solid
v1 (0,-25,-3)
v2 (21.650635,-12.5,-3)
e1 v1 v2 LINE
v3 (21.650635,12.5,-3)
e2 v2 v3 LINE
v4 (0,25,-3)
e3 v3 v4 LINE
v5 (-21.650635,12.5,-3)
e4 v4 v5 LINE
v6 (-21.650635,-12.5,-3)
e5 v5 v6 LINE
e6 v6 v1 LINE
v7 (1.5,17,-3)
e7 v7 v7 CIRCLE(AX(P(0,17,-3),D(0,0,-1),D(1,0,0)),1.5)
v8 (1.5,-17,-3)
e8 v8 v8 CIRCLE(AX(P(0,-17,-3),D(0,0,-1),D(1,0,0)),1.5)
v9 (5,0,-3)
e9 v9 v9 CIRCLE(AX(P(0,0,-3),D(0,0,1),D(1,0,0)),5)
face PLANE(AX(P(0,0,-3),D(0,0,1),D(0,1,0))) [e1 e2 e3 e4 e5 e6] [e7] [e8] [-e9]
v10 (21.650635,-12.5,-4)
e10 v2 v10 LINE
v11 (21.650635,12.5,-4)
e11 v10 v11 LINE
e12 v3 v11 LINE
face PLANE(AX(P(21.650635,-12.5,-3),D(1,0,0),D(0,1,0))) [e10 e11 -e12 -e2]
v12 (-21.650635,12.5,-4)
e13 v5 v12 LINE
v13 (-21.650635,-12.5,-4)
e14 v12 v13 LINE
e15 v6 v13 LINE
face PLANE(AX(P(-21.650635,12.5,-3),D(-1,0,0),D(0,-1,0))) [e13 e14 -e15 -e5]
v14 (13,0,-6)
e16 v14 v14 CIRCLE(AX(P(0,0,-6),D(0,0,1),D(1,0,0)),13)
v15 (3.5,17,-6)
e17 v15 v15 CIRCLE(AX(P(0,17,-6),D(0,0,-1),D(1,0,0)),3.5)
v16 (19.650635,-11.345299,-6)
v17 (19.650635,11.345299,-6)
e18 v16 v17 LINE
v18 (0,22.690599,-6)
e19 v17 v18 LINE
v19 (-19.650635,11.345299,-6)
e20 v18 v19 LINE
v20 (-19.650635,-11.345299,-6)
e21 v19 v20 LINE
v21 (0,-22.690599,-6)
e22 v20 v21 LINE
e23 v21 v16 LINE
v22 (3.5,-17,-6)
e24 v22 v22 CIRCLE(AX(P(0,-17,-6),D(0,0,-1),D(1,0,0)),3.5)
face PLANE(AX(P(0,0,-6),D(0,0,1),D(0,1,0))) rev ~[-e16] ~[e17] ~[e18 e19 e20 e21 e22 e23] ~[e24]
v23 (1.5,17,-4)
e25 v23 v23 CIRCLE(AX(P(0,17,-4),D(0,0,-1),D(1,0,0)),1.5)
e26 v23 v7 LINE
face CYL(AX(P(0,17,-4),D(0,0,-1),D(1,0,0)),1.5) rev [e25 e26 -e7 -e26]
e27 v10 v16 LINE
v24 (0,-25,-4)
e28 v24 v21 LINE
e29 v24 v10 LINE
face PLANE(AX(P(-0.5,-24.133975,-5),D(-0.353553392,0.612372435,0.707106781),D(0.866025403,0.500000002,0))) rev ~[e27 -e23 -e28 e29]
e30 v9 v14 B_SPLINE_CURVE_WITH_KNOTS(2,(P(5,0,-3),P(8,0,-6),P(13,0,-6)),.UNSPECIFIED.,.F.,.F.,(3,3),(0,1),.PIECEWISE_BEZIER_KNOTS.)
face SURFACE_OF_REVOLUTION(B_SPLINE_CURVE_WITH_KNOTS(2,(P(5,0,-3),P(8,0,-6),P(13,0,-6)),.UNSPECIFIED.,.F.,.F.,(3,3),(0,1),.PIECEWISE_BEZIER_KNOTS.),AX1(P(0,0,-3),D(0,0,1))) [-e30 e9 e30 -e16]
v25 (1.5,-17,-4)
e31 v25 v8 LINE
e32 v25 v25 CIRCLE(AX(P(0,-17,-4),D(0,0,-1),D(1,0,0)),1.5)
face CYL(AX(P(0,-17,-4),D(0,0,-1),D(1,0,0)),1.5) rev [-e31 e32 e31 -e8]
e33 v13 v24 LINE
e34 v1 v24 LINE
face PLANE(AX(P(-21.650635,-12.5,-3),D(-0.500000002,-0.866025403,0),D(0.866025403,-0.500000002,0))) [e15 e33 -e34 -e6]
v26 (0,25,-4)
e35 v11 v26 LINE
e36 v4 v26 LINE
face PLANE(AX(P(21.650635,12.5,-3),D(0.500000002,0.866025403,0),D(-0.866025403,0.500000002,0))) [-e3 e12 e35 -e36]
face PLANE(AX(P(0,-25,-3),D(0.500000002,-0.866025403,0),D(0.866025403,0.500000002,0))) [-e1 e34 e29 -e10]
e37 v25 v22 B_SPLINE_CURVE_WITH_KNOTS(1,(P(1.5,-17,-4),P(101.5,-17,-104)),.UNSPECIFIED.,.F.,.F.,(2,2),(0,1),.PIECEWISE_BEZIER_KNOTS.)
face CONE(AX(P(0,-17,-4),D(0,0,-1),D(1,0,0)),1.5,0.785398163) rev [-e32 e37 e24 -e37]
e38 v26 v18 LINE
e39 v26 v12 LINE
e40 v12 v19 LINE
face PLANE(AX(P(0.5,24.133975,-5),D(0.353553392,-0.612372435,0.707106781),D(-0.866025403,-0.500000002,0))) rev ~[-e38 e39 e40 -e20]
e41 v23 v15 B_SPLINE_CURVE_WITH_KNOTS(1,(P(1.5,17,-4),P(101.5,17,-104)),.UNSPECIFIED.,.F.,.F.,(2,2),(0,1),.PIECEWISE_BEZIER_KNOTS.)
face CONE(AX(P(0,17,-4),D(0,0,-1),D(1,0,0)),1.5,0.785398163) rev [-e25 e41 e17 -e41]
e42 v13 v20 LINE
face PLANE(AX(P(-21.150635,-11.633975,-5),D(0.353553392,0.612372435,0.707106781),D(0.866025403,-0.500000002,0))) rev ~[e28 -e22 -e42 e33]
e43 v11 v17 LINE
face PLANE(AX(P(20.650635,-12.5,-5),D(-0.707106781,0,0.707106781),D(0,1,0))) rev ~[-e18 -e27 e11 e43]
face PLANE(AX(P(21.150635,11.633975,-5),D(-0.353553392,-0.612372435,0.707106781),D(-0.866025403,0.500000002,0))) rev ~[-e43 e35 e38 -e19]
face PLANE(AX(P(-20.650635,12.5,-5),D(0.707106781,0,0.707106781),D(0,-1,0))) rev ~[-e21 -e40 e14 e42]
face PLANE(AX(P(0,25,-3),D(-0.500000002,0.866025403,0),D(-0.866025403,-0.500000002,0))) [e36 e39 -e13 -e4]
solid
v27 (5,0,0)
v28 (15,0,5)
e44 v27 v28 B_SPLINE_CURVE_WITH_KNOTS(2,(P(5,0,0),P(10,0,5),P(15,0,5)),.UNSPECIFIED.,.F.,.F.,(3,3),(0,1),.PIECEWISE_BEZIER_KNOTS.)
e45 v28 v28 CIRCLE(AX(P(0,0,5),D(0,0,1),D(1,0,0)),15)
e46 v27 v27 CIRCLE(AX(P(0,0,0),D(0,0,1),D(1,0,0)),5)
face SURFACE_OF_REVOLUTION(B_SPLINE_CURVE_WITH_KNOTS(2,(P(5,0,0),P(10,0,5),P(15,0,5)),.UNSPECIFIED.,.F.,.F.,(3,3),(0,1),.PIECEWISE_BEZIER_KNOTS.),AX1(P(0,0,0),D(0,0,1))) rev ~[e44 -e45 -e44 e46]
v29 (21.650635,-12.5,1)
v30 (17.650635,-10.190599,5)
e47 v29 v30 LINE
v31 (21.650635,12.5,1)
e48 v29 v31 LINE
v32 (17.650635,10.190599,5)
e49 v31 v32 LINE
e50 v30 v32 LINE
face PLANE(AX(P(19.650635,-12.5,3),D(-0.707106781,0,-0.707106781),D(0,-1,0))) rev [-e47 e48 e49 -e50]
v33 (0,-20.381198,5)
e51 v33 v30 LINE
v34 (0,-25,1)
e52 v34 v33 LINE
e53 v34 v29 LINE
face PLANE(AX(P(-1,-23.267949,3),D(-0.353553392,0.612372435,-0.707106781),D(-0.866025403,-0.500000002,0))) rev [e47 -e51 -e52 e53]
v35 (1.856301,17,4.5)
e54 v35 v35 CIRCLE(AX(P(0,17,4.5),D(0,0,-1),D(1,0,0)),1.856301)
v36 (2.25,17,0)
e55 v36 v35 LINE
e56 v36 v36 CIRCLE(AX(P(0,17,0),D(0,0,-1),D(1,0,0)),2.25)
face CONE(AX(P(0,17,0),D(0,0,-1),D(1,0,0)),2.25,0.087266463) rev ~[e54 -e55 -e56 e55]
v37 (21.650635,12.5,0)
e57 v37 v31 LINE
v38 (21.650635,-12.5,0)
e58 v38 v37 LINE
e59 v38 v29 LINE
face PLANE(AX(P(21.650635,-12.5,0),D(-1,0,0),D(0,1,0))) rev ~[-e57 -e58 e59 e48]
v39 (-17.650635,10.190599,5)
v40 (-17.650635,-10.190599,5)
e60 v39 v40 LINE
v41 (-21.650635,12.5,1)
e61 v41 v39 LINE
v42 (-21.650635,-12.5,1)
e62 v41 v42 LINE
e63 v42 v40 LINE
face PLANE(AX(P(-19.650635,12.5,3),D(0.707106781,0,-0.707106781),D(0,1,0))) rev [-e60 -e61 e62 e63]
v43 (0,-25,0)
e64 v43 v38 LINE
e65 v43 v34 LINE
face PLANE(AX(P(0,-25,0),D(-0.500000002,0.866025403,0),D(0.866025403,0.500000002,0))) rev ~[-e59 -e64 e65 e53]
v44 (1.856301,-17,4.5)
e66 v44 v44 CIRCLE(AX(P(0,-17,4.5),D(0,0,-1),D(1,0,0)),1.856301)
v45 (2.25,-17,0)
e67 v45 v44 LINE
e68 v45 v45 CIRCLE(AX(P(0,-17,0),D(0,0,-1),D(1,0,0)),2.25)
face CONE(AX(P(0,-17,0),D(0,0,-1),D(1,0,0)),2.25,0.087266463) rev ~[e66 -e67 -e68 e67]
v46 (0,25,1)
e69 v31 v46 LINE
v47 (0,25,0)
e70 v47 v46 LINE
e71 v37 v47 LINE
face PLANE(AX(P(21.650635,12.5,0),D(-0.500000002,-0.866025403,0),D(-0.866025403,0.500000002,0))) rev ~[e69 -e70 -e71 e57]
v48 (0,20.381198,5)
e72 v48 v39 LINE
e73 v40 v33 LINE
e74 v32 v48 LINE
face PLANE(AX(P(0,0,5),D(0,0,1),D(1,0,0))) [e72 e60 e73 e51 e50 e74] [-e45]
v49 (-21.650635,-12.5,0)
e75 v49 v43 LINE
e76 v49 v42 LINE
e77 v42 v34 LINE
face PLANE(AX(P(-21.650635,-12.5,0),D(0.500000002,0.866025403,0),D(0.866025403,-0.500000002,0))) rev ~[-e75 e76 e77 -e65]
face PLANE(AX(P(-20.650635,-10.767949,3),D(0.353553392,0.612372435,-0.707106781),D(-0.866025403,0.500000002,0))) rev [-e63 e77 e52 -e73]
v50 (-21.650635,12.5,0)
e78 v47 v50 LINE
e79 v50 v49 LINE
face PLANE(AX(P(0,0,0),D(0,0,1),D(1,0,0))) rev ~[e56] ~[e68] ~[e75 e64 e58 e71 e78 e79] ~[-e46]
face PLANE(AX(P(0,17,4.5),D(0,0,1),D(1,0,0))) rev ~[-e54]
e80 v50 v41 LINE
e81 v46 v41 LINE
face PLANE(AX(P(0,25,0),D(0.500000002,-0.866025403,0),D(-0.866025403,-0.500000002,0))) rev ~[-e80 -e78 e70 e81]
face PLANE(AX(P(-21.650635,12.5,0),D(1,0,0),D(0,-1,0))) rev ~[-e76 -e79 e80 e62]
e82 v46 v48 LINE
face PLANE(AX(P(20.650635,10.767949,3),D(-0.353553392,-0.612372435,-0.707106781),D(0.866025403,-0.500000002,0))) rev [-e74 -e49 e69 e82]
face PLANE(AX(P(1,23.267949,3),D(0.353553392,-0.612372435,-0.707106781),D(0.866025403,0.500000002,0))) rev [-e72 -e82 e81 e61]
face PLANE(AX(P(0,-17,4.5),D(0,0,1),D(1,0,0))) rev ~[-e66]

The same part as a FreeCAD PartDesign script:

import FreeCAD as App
import Part
import Sketcher
from FreeCAD import Vector
Q = App.Units.Quantity


def edges_at(feature, points):
    """Names of the edges that pass closest to the given points."""
    edges = feature.Shape.Edges
    near = lambda p: min(range(len(edges)), key=lambda i: edges[i].distToShape(Part.Vertex(*p))[0])
    return sorted({f"Edge{near(p) + 1}" for p in points})


def add_polygon(sketch, points):
    """Adds a closed chain of lines whose ends are joined by coincident constraints."""
    first, n = sketch.GeometryCount, len(points)
    for a, b in zip(points, points[1:] + points[:1]):
        sketch.addGeometry(Part.LineSegment(App.Vector(*a, 0), App.Vector(*b, 0)), False)
    for i in range(n):
        sketch.addConstraint(Sketcher.Constraint("Coincident", first + i, 2, first + (i + 1) % n, 1))

doc = App.newDocument("Part")
body = doc.addObject("PartDesign::Body", "Body")

sketch1 = body.newObject("Sketcher::SketchObject", "Sketch")
sketch1.AttachmentSupport = (doc.getObject("XY_Plane"), [""])
sketch1.MapMode = "FlatFace"
add_polygon(sketch1, [(0, -25), (22, -12), (22, 12), (0, 25), (-22, 12), (-22, -12)])
sketch1.addConstraint([
    Sketcher.Constraint("Vertical", 1),
    Sketcher.Constraint("Vertical", 4),
    Sketcher.Constraint("Symmetric", 0, 2, 3, 2, -1, 1),
    Sketcher.Constraint("Symmetric", 2, 2, 5, 2, -1, 1),
    Sketcher.Constraint("PointOnObject", 2, 2, -2),
    Sketcher.Constraint("Parallel", 2, 5),
    Sketcher.Constraint("Horizontal", 1, 2, 3, 2),
    Sketcher.Constraint("DistanceY", 1, 1, 1, 2, 25.0),
    Sketcher.Constraint("Angle", 0, Q("30 deg")),
    Sketcher.Constraint("Distance", 0, 25.0),
])
pad1 = body.newObject("PartDesign::Pad", "Pad")
pad1.Profile = sketch1
pad1.Length = 5
doc.recompute()

chamfer = body.newObject("PartDesign::Chamfer", "Chamfer")
chamfer.Base = (pad1, edges_at(pad1, [
    (-10.825, 18.75, 5),
    (-21.651, 0, 5),
    (-10.825, -18.75, 5),
    (10.825, -18.75, 5),
    (21.651, 0, 5),
    (10.825, 18.75, 5),
]))
chamfer.Size = 4

sketch2 = body.newObject("Sketcher::SketchObject", "Sketch001")
sketch2.AttachmentSupport = (doc.getObject("XZ_Plane"), [""])
sketch2.MapMode = "FlatFace"
sketch2.addGeometry([
    Part.LineSegment(Vector(0, 5, 0), Vector(0, 0, 0)),
    Part.LineSegment(Vector(0, 0, 0), Vector(5, 0, 0)),
    Part.BSplineCurve([Vector(5, 0, 0), Vector(10, 5, 0), Vector(15, 5, 0)], [3, 3], [0, 1], False, 2, [1, 1, 1], False),
    Part.LineSegment(Vector(15, 5, 0), Vector(0, 5, 0)),
], False)
sketch2.addConstraint([
    Sketcher.Constraint("Block", 2),
    Sketcher.Constraint("Coincident", 0, 2, 1, 1),
    Sketcher.Constraint("Coincident", 1, 2, 2, 1),
    Sketcher.Constraint("Coincident", 2, 2, 3, 1),
    Sketcher.Constraint("Coincident", 3, 2, 0, 1),
    Sketcher.Constraint("Vertical", 0),
    Sketcher.Constraint("Horizontal", 1),
    Sketcher.Constraint("Horizontal", 3),
    Sketcher.Constraint("PointOnObject", 3, 2, -2),
])
groove = body.newObject("PartDesign::Groove", "Groove")
groove.Profile = sketch2
groove.ReferenceAxis = (sketch2, ["V_Axis"])
groove.Angle = 360

sketch3 = body.newObject("Sketcher::SketchObject", "Sketch002")
sketch3.AttachmentSupport = (doc.getObject("XY_Plane"), [""])
sketch3.MapMode = "FlatFace"
sketch3.addGeometry([
    Part.Circle(Vector(0, 17, 0), Vector(0, 0, 1), 2.2),
    Part.Circle(Vector(0, -17, 0), Vector(0, 0, 1), 2.2),
], False)
sketch3.addConstraint([
    Sketcher.Constraint("Equal", 0, 1),
    Sketcher.Constraint("Symmetric", 0, 3, 1, 3, -1, 1),
    Sketcher.Constraint("PointOnObject", 0, 3, -2),
    Sketcher.Constraint("Diameter", 0, 4.5),
    Sketcher.Constraint("DistanceY", -1, 1, 0, 3, 17.0),
])
pocket1 = body.newObject("PartDesign::Pocket", "Pocket")
pocket1.Profile = sketch3
pocket1.Length = 4.5
pocket1.Reversed = True
pocket1.TaperAngle = -5
body2 = doc.addObject("PartDesign::Body", "Body001")

sketch4 = body2.newObject("Sketcher::SketchObject", "Sketch003")
sketch4.AttachmentSupport = (doc.getObject("XY_Plane001"), [""])
sketch4.MapMode = "FlatFace"
sketch4.AttachmentOffset = App.Placement(Vector(0, 0, -3), App.Rotation())
add_polygon(sketch4, [(0, -25), (22, -12), (22, 12), (0, 25), (-22, 12), (-22, -12)])
sketch4.addConstraint([
    Sketcher.Constraint("Vertical", 1),
    Sketcher.Constraint("Vertical", 4),
    Sketcher.Constraint("Symmetric", 0, 2, 3, 2, -1, 1),
    Sketcher.Constraint("Symmetric", 2, 2, 5, 2, -1, 1),
    Sketcher.Constraint("PointOnObject", 2, 2, -2),
    Sketcher.Constraint("Parallel", 2, 5),
    Sketcher.Constraint("Horizontal", 1, 2, 3, 2),
    Sketcher.Constraint("DistanceY", 1, 1, 1, 2, 25.0),
    Sketcher.Constraint("Angle", 0, Q("30 deg")),
    Sketcher.Constraint("Distance", 0, 25.0),
])
pad2 = body2.newObject("PartDesign::Pad", "Pad001")
pad2.Profile = sketch4
pad2.Length = 3
pad2.Reversed = True
doc.recompute()

chamfer2 = body2.newObject("PartDesign::Chamfer", "Chamfer001")
chamfer2.Base = (pad2, edges_at(pad2, [
    (10.825, -18.75, -6),
    (21.651, 0, -6),
    (10.825, 18.75, -6),
    (-10.825, 18.75, -6),
    (-21.651, 0, -6),
    (-10.825, -18.75, -6),
]))
chamfer2.Size = 2

sketch5 = body2.newObject("Sketcher::SketchObject", "Sketch004")
sketch5.AttachmentSupport = (doc.getObject("XY_Plane001"), [""])
sketch5.MapMode = "FlatFace"
sketch5.AttachmentOffset = App.Placement(Vector(0, 0, -4), App.Rotation())
sketch5.addGeometry([
    Part.Circle(Vector(0, 17, 0), Vector(0, 0, 1), 1.5),
    Part.Circle(Vector(0, -17, 0), Vector(0, 0, 1), 1.5),
], False)
sketch5.addConstraint([
    Sketcher.Constraint("Equal", 0, 1),
    Sketcher.Constraint("Symmetric", 0, 3, 1, 3, -1, 1),
    Sketcher.Constraint("PointOnObject", 0, 3, -2),
    Sketcher.Constraint("Diameter", 0, 3.0),
    Sketcher.Constraint("DistanceY", -1, 1, 0, 3, 17.0),
])
pocket2 = body2.newObject("PartDesign::Pocket", "Pocket001")
pocket2.Profile = sketch5
pocket2.Length = 100
pocket2.TaperAngle = 45

sketch6 = body2.newObject("Sketcher::SketchObject", "Sketch005")
sketch6.AttachmentSupport = (doc.getObject("XY_Plane001"), [""])
sketch6.MapMode = "FlatFace"
sketch6.AttachmentOffset = App.Placement(Vector(0, 0, -4), App.Rotation())
sketch6.addGeometry([
    Part.Circle(Vector(0, 17, 0), Vector(0, 0, 1), 1.5),
    Part.Circle(Vector(0, -17, 0), Vector(0, 0, 1), 1.5),
], False)
sketch6.addConstraint([
    Sketcher.Constraint("Equal", 0, 1),
    Sketcher.Constraint("Symmetric", 0, 3, 1, 3, -1, 1),
    Sketcher.Constraint("PointOnObject", 0, 3, -2),
    Sketcher.Constraint("Diameter", 0, 3.0),
    Sketcher.Constraint("DistanceY", -1, 1, 0, 3, 17.0),
])
pocket3 = body2.newObject("PartDesign::Pocket", "Pocket002")
pocket3.Profile = sketch6
pocket3.Type = "ThroughAll"
pocket3.Reversed = True

sketch7 = body2.newObject("Sketcher::SketchObject", "Sketch006")
sketch7.AttachmentSupport = (doc.getObject("XZ_Plane001"), [""])
sketch7.MapMode = "FlatFace"
sketch7.addGeometry([
    Part.LineSegment(Vector(0, -3, 0), Vector(0, -6, 0)),
    Part.LineSegment(Vector(0, -6, 0), Vector(13, -6, 0)),
    Part.BSplineCurve([Vector(5, -3, 0), Vector(8, -6, 0), Vector(13, -6, 0)], [3, 3], [0, 1], False, 2, [1, 1, 1], False),
    Part.LineSegment(Vector(5, -3, 0), Vector(0, -3, 0)),
], False)
sketch7.addConstraint([
    Sketcher.Constraint("Block", 2),
    Sketcher.Constraint("Coincident", 0, 2, 1, 1),
    Sketcher.Constraint("Coincident", 1, 2, 2, 2),
    Sketcher.Constraint("Coincident", 2, 1, 3, 1),
    Sketcher.Constraint("Coincident", 3, 2, 0, 1),
    Sketcher.Constraint("Vertical", 0),
    Sketcher.Constraint("Horizontal", 1),
    Sketcher.Constraint("Horizontal", 3),
    Sketcher.Constraint("PointOnObject", 0, 2, -2),
])
groove2 = body2.newObject("PartDesign::Groove", "Groove001")
groove2.Profile = sketch7
groove2.ReferenceAxis = (sketch7, ["V_Axis"])
groove2.Angle = 360

doc.recompute()
